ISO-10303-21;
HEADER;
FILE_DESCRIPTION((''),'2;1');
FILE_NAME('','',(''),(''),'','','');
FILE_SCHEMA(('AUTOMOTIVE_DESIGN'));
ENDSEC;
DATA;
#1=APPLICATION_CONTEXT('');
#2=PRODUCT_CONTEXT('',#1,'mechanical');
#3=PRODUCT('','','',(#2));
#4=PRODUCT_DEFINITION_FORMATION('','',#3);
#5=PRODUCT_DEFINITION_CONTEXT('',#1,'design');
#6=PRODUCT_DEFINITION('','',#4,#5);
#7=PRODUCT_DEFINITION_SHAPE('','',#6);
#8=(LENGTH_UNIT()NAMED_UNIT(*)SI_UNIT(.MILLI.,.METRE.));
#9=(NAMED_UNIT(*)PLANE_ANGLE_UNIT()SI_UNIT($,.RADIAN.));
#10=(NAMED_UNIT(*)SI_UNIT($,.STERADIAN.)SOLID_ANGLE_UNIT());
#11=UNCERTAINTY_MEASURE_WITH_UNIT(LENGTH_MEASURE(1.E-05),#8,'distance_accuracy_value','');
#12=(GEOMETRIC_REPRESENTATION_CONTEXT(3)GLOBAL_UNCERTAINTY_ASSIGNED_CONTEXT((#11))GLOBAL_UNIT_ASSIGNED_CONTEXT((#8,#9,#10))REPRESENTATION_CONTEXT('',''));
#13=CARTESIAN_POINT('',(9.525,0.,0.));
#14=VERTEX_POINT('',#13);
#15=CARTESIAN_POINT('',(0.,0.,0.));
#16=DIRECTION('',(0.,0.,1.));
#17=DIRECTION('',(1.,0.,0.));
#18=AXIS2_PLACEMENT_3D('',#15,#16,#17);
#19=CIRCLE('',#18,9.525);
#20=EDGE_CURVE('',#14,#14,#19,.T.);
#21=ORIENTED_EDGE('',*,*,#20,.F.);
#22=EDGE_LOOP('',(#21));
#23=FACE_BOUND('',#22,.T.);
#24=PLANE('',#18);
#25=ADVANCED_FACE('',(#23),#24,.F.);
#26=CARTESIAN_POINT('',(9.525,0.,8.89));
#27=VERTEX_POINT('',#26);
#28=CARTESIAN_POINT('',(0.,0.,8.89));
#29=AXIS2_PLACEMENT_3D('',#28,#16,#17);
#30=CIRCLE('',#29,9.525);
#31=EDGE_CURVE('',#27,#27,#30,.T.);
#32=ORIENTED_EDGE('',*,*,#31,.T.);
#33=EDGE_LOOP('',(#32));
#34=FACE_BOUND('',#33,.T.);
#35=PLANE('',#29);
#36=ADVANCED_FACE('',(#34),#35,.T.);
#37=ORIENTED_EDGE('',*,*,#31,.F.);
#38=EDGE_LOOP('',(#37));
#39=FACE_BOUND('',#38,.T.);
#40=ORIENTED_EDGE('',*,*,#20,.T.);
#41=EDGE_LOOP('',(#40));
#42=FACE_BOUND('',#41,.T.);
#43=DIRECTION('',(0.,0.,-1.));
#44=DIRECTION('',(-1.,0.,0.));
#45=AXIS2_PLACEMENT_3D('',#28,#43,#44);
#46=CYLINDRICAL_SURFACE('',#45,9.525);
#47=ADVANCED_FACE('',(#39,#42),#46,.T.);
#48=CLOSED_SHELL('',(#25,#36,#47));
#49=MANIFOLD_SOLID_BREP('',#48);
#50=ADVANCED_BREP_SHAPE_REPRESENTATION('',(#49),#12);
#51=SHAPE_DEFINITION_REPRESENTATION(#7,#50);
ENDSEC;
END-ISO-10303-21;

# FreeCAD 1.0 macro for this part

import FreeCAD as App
import Part
import Sketcher

V = App.Vector
Q = App.Units.Quantity

doc = App.newDocument("Part")
params = doc.addObject("Spreadsheet::Sheet", "Params")
for row, (alias, value) in enumerate([
    ("sketch1_diameter", "0.75 in"),
    ("pad1_length", "0.35 in"),
], start=1):
    params.set(f"A{row}", alias)
    params.set(f"B{row}", "=" + value)
    params.setAlias(f"B{row}", alias)

body = doc.addObject("PartDesign::Body", "Body")

# Sketch on XY plane
sketch1 = body.newObject("Sketcher::SketchObject", "Sketch")
sketch1.AttachmentSupport = (doc.getObject("XY_Plane"), [""])
sketch1.MapMode = "FlatFace"
sketch1.addGeometry(Part.Circle(V(0, 0, 0), V(0, 0, 1), 10), False)
sketch1.addConstraint(Sketcher.Constraint("Coincident", 0, 3, -1, 1))
sketch1.addConstraint(Sketcher.Constraint("Diameter", 0, Q("0.75 in")))
sketch1.setExpression("Constraints[1]", "Params.sketch1_diameter")
pad1 = body.newObject("PartDesign::Pad", "Pad")
pad1.Profile = sketch1
pad1.setExpression("Length", "Params.pad1_length")

doc.recompute()
